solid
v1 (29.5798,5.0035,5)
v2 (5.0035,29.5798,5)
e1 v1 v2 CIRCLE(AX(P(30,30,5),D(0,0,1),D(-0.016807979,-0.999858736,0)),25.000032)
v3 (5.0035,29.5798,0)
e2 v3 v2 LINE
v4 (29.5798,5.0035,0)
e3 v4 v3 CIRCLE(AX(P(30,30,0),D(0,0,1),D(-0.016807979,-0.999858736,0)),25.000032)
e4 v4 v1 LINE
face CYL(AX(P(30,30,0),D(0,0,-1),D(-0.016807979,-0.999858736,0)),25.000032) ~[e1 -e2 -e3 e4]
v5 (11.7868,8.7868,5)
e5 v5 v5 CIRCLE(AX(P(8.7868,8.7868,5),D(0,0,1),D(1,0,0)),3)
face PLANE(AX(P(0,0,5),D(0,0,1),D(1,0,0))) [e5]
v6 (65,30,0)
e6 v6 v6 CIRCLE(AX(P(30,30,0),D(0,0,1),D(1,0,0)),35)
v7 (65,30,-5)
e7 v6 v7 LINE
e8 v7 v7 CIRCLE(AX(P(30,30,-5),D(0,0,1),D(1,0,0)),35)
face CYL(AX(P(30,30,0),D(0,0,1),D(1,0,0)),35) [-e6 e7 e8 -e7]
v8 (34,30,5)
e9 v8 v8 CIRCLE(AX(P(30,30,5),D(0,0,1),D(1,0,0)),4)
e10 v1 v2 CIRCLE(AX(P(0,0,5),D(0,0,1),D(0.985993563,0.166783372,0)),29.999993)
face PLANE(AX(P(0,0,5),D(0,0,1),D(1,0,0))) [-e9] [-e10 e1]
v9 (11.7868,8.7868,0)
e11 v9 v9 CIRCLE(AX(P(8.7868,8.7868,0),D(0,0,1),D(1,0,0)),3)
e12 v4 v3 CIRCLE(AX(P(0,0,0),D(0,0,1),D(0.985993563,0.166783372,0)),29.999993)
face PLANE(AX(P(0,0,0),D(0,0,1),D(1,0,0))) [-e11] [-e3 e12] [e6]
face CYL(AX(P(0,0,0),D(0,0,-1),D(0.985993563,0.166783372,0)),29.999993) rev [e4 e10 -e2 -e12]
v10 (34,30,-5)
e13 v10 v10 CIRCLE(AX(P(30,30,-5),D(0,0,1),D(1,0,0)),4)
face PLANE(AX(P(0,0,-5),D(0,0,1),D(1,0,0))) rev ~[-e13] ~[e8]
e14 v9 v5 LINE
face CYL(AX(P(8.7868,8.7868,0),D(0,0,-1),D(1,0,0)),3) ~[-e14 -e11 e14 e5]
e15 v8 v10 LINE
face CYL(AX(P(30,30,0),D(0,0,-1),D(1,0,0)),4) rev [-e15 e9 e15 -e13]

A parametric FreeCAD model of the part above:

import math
import FreeCAD as App
import Part
import Sketcher

V = App.Vector

doc = App.newDocument("Part")
body = doc.addObject("PartDesign::Body", "Body")
body.AllowCompound = True

# Sketch on XY plane
sketch1 = body.newObject("Sketcher::SketchObject", "Sketch")
sketch1.AttachmentSupport = (doc.getObject("XY_Plane"), [""])
sketch1.MapMode = "FlatFace"
sketch1.addGeometry(Part.ArcOfCircle(Part.Circle(V(0, 0, 0), V(0, 0, 1), 29.999993), math.radians(9.60085), math.radians(80.39915)), False)
sketch1.addGeometry(Part.ArcOfCircle(Part.Circle(V(30, 30, 0), V(0, 0, 1), 25.000032), math.radians(-90.963072), math.radians(180.963072)), False)
sketch1.addGeometry(Part.Circle(V(30, 30, 0), V(0, 0, 1), 4), False)
sketch1.addGeometry(Part.Circle(V(8.7868, 8.7868, 0), V(0, 0, 1), 3), False)
sketch1.addConstraint(Sketcher.Constraint("Coincident", 0, 1, 1, 1))
sketch1.addConstraint(Sketcher.Constraint("Coincident", 1, 2, 0, 2))
sketch1.addConstraint(Sketcher.Constraint("Coincident", 0, 3, -1, 1))
sketch1.addConstraint(Sketcher.Constraint("Coincident", 2, 3, 1, 3))
sketch1.addConstraint(Sketcher.Constraint("Diameter", 2, 8.0))
sketch1.addConstraint(Sketcher.Constraint("Diameter", 3, 6.0))
sketch1.addConstraint(Sketcher.Constraint("Radius", 0, 30.0))
sketch1.addConstraint(Sketcher.Constraint("Radius", 1, 25.0))
sketch1.addConstraint(Sketcher.Constraint("DistanceX", -1, 1, 1, 3, 30.0))
sketch1.addConstraint(Sketcher.Constraint("DistanceY", -1, 1, 1, 3, 30.0))
sketch1.addConstraint(Sketcher.Constraint("DistanceX", 3, 3, 0, 1, 20.793))
sketch1.addConstraint(Sketcher.Constraint("DistanceY", 3, 3, 1, 2, 20.793))
pad1 = body.newObject("PartDesign::Pad", "Pad")
pad1.Profile = sketch1
pad1.Length = 5

# Sketch on XY plane
sketch2 = body.newObject("Sketcher::SketchObject", "Sketch001")
sketch2.AttachmentSupport = (doc.getObject("XY_Plane"), [""])
sketch2.MapMode = "FlatFace"
sketch2.addGeometry(Part.Circle(V(30, 30, 0), V(0, 0, 1), 35), False)
sketch2.addGeometry(Part.Circle(V(30, 30, 0), V(0, 0, 1), 4), False)
sketch2.addConstraint(Sketcher.Constraint("Coincident", 1, 3, 0, 3))
sketch2.addConstraint(Sketcher.Constraint("Diameter", 0, 70.0))
sketch2.addConstraint(Sketcher.Constraint("Diameter", 1, 8.0))
sketch2.addConstraint(Sketcher.Constraint("DistanceX", -1, 1, 0, 3, 30.0))
sketch2.addConstraint(Sketcher.Constraint("DistanceY", -1, 1, 0, 3, 30.0))
pad2 = body.newObject("PartDesign::Pad", "Pad001")
pad2.Profile = sketch2
pad2.Length = 5
pad2.Reversed = True

doc.recompute()
